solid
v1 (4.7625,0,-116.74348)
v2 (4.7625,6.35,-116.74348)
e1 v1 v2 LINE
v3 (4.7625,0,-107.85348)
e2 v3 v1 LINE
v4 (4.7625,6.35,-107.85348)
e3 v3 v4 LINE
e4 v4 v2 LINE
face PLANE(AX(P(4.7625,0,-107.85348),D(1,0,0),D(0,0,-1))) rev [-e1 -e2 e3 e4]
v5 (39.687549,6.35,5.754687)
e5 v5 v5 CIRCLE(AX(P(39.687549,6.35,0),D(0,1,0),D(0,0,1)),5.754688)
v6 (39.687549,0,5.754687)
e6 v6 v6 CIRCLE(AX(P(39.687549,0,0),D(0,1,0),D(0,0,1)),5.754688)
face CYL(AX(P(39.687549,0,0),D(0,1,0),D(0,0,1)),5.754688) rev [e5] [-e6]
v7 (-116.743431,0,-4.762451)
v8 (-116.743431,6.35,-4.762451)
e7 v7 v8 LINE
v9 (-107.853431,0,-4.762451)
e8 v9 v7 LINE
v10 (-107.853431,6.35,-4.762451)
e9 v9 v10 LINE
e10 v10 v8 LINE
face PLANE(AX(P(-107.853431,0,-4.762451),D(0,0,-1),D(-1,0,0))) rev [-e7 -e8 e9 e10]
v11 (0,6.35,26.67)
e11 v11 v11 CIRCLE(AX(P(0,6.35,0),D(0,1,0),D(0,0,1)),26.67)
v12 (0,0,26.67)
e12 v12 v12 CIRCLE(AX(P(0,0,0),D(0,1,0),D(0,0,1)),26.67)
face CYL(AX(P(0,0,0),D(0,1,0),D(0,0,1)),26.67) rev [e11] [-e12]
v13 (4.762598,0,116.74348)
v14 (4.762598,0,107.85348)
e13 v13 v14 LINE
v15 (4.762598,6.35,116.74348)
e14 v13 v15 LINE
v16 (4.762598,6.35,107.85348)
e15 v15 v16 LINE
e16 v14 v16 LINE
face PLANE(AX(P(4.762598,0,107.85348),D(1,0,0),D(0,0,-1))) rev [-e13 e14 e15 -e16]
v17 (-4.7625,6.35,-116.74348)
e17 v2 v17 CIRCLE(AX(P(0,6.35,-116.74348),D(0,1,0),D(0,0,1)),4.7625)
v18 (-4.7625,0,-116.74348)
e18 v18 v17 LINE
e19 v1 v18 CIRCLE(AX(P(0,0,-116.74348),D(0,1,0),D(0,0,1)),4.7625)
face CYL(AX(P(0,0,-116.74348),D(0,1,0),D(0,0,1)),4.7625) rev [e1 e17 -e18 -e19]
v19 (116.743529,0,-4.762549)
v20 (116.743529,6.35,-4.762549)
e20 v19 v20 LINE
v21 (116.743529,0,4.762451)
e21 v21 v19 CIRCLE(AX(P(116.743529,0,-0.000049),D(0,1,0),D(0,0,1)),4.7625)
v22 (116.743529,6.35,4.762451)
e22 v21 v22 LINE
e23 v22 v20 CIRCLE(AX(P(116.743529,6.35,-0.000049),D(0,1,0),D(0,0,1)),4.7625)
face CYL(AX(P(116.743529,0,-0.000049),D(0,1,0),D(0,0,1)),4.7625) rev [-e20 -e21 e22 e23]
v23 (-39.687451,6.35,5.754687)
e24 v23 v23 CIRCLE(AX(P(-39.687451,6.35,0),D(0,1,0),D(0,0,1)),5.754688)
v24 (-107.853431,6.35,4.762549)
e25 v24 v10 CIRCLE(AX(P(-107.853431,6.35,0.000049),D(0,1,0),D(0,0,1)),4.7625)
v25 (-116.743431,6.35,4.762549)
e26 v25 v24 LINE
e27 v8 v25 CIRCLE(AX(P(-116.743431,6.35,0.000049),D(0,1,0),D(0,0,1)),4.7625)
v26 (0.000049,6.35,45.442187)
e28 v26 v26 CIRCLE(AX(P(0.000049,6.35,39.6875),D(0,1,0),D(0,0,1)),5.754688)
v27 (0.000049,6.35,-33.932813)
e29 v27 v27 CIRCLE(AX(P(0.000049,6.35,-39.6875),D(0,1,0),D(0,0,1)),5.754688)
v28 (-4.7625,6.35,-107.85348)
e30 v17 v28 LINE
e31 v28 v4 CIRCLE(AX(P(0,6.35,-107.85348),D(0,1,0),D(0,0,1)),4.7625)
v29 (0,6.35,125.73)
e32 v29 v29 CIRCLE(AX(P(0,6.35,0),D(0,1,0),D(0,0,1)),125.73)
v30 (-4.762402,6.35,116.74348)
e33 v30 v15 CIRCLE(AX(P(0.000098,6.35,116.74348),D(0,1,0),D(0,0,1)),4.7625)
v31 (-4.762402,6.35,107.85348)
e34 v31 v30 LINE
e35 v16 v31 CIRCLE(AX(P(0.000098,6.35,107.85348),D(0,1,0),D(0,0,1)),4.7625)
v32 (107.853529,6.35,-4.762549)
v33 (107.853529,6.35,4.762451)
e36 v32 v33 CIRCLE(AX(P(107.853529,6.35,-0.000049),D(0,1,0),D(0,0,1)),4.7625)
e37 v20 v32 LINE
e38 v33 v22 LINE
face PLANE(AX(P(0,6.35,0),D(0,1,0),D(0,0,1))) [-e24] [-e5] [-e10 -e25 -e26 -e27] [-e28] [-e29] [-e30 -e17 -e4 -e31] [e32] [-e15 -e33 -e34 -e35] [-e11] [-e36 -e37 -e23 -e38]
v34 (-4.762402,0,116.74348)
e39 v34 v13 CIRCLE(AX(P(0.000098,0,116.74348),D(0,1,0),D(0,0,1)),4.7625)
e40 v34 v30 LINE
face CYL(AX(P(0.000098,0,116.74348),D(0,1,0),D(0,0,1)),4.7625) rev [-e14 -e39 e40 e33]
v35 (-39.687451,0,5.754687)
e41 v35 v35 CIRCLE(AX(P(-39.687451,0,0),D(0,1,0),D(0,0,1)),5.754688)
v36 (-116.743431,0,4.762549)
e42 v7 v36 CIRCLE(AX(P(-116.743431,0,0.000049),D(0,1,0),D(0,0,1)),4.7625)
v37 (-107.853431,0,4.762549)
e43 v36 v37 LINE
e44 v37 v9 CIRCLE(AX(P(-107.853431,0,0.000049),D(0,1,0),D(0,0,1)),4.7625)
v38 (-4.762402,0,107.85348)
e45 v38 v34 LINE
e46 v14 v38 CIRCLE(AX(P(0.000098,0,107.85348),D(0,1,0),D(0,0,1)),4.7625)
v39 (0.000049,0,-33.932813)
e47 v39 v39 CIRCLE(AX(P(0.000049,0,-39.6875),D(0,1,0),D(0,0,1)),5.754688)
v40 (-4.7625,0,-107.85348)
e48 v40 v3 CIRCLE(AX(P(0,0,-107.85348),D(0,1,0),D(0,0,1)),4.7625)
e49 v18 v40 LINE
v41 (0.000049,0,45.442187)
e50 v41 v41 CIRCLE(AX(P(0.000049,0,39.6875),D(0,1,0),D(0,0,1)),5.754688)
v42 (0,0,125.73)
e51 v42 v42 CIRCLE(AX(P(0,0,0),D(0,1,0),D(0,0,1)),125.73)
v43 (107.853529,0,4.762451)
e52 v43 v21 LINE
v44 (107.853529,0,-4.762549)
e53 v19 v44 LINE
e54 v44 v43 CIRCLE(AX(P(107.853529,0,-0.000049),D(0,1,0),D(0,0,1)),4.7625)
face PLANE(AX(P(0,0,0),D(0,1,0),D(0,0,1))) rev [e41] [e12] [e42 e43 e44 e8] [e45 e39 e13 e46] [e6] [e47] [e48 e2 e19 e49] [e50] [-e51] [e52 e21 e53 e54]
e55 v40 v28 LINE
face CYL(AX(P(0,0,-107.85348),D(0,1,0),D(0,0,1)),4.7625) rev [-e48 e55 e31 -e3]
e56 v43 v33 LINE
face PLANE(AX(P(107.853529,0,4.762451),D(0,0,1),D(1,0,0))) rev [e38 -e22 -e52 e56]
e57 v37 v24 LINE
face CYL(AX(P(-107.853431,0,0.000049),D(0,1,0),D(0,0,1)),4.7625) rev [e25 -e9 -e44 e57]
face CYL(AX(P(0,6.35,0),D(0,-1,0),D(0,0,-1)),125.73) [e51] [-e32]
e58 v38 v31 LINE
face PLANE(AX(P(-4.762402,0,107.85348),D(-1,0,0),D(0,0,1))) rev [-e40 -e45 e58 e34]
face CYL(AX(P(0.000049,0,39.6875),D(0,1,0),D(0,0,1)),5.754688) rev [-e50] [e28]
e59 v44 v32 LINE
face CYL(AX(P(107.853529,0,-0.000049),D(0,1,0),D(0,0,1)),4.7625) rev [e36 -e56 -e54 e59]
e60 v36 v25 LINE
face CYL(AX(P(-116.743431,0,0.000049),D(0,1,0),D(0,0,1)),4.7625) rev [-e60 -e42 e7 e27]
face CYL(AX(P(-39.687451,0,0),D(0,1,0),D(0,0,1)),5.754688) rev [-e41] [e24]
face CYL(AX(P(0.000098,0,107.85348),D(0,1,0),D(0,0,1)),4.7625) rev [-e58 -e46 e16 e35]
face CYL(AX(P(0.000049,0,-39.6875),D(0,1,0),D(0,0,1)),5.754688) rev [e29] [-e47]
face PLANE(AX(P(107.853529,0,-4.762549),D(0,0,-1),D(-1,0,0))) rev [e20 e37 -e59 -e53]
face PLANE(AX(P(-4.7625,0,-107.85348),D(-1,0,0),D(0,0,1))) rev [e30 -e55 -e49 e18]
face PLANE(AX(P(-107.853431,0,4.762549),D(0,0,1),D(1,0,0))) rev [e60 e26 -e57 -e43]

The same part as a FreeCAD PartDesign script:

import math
import FreeCAD as App
import Part
import Sketcher
from FreeCAD import Vector
Q = App.Units.Quantity

doc = App.newDocument("Part")
params = doc.addObject("Spreadsheet::Sheet", "Params")
for row, (alias, value) in enumerate([
    ("sketch1_diameter", "9.9 in"),
    ("pad1_length", "0.25 in"),
    ("sketch2_diameter", "2.1 in"),
    ("sketch2_diameter2", "0.453125 in"),
    ("sketch2_radius", "0.1875 in"),
    ("sketch2_width", "0.35 in"),
    ("pocket1_length", "0.25 in"),
], start=1):
    params.set(f"A{row}", alias)
    params.set(f"B{row}", "=" + value)
    params.setAlias(f"B{row}", alias)

body = doc.addObject("PartDesign::Body", "Body")

# Sketch on XZ plane
sketch1 = body.newObject("Sketcher::SketchObject", "Sketch")
sketch1.AttachmentSupport = (doc.getObject("XZ_Plane"), [""])
sketch1.MapMode = "FlatFace"
sketch1.addGeometry(Part.Circle(Vector(0, 0, 0), Vector(0, 0, 1), 126), False)
sketch1.addConstraint([
    Sketcher.Constraint("Coincident", 0, 3, -1, 1),
    Sketcher.Constraint("Diameter", 0, Q("9.9 in")),
])
sketch1.setExpression("Constraints[1]", "Params.sketch1_diameter")
pad1 = body.newObject("PartDesign::Pad", "Pad")
pad1.Profile = sketch1
pad1.setExpression("Length", "Params.pad1_length")
pad1.Reversed = True

# Sketch on XZ plane
sketch2 = body.newObject("Sketcher::SketchObject", "Sketch001")
sketch2.AttachmentSupport = (doc.getObject("XZ_Plane"), [""])
sketch2.MapMode = "FlatFace"
sketch2.AttachmentOffset = App.Placement(Vector(0, 0, -0.25 * 25.4), App.Rotation())
sketch2.addGeometry([
    Part.Circle(Vector(0, -39.7, 0), Vector(0, 0, 1), 5.8),  # 0
    Part.Circle(Vector(39.7, 0, 0), Vector(0, 0, 1), 5.8),  # 1
    Part.Circle(Vector(0, 39.7, 0), Vector(0, 0, 1), 5.8),  # 2
    Part.Circle(Vector(-39.7, 0, 0), Vector(0, 0, 1), 5.8),  # 3
    Part.Circle(Vector(0, 0, 0), Vector(0, 0, 1), 26.7),  # 4
    Part.LineSegment(Vector(-4.8, -116.7, 0), Vector(-4.8, -107.9, 0)),  # 5
    Part.ArcOfCircle(Part.Circle(Vector(0, -107.9, 0), Vector(0, 0, 1), 4.8), math.radians(0), math.radians(180)),  # 6
    Part.LineSegment(Vector(4.8, -107.9, 0), Vector(4.8, -116.7, 0)),  # 7
    Part.ArcOfCircle(Part.Circle(Vector(0, -116.7, 0), Vector(0, 0, 1), 4.8), math.radians(180), math.radians(360)),  # 8
    Part.LineSegment(Vector(116.7, -4.8, 0), Vector(107.9, -4.8, 0)),  # 9
    Part.ArcOfCircle(Part.Circle(Vector(107.9, 0, 0), Vector(0, 0, 1), 4.8), math.radians(90), math.radians(270)),  # 10
    Part.LineSegment(Vector(107.9, 4.8, 0), Vector(116.7, 4.8, 0)),  # 11
    Part.ArcOfCircle(Part.Circle(Vector(116.7, 0, 0), Vector(0, 0, 1), 4.8), math.radians(-90), math.radians(90)),  # 12
    Part.LineSegment(Vector(4.8, 116.7, 0), Vector(4.8, 107.9, 0)),  # 13
    Part.ArcOfCircle(Part.Circle(Vector(0, 107.9, 0), Vector(0, 0, 1), 4.8), math.radians(180), math.radians(360)),  # 14
    Part.LineSegment(Vector(-4.8, 107.9, 0), Vector(-4.8, 116.7, 0)),  # 15
    Part.ArcOfCircle(Part.Circle(Vector(0, 116.7, 0), Vector(0, 0, 1), 4.8), math.radians(0), math.radians(180)),  # 16
    Part.LineSegment(Vector(-116.7, 4.8, 0), Vector(-107.9, 4.8, 0)),  # 17
    Part.ArcOfCircle(Part.Circle(Vector(-107.9, 0, 0), Vector(0, 0, 1), 4.8), math.radians(-90), math.radians(90)),  # 18
    Part.LineSegment(Vector(-107.9, -4.8, 0), Vector(-116.7, -4.8, 0)),  # 19
    Part.ArcOfCircle(Part.Circle(Vector(-116.7, 0, 0), Vector(0, 0, 1), 4.8), math.radians(90), math.radians(270)),  # 20
], False)
sketch2.addConstraint([
    Sketcher.Constraint("Tangent", 5, 2, 6, 2),
    Sketcher.Constraint("Tangent", 6, 1, 7, 1),
    Sketcher.Constraint("Tangent", 7, 2, 8, 2),
    Sketcher.Constraint("Tangent", 8, 1, 5, 1),
    Sketcher.Constraint("Tangent", 9, 2, 10, 2),
    Sketcher.Constraint("Tangent", 10, 1, 11, 1),
    Sketcher.Constraint("Tangent", 11, 2, 12, 2),
    Sketcher.Constraint("Tangent", 12, 1, 9, 1),
    Sketcher.Constraint("Tangent", 13, 2, 14, 2),
    Sketcher.Constraint("Tangent", 14, 1, 15, 1),
    Sketcher.Constraint("Tangent", 15, 2, 16, 2),
    Sketcher.Constraint("Tangent", 16, 1, 13, 1),
    Sketcher.Constraint("Tangent", 17, 2, 18, 2),
    Sketcher.Constraint("Tangent", 18, 1, 19, 1),
    Sketcher.Constraint("Tangent", 19, 2, 20, 2),
    Sketcher.Constraint("Tangent", 20, 1, 17, 1),
    Sketcher.Constraint("Vertical", 5),
    Sketcher.Constraint("Vertical", 7),
    Sketcher.Constraint("Horizontal", 9),
    Sketcher.Constraint("Horizontal", 11),
    Sketcher.Constraint("Vertical", 13),
    Sketcher.Constraint("Vertical", 15),
    Sketcher.Constraint("Horizontal", 17),
    Sketcher.Constraint("Horizontal", 19),
    Sketcher.Constraint("Coincident", 4, 3, -1, 1),
    Sketcher.Constraint("Equal", 0, 1),
    Sketcher.Constraint("Equal", 1, 2),
    Sketcher.Constraint("Equal", 2, 3),
    Sketcher.Constraint("Equal", 8, 10),
    Sketcher.Constraint("Equal", 12, 14),
    Sketcher.Constraint("Equal", 16, 18),
    Sketcher.Constraint("Symmetric", 0, 3, 2, 3, -1),
    Sketcher.Constraint("PointOnObject", 1, 3, -1),
    Sketcher.Constraint("PointOnObject", 3, 3, -1),
    Sketcher.Constraint("PointOnObject", 6, 3, -2),
    Sketcher.Constraint("Equal", 11, 17),
    Sketcher.Constraint("Equal", 19, 5),
    Sketcher.Constraint("Equal", 7, 13),
    Sketcher.Constraint("Diameter", 4, Q("2.1 in")),
    Sketcher.Constraint("Diameter", 0, Q("0.453125 in")),
    Sketcher.Constraint("Radius", 6, Q("0.1875 in")),
    Sketcher.Constraint("DistanceX", 9, 2, 9, 1, Q("0.35 in")),
    Sketcher.Constraint("DistanceY", 0, 3, -1, 1, Q("1.5625 in")),
    Sketcher.Constraint("DistanceX", 0, 3, 1, 3, Q("1.5625 in")),
    Sketcher.Constraint("DistanceX", 3, 3, 0, 3, Q("1.5625 in")),
    Sketcher.Constraint("DistanceY", 6, 3, -1, 1, Q("4.2462 in")),
    Sketcher.Constraint("DistanceY", -1, 1, 14, 3, Q("4.2462 in")),
    Sketcher.Constraint("DistanceX", 1, 3, 10, 3, Q("2.6837 in")),
    Sketcher.Constraint("DistanceX", 18, 3, 3, 3, Q("2.6837 in")),
    Sketcher.Constraint("DistanceX", -1, 1, 13, 2, Q("4.762598 mm")),
    Sketcher.Constraint("DistanceX", -1, 1, 1, 3, Q("39.687549 mm")),
    Sketcher.Constraint("DistanceY", 9, 2, -1, 1, Q("4.762549 mm")),
    Sketcher.Constraint("DistanceY", -1, 1, 17, 2, Q("4.762549 mm")),
])
sketch2.setExpression("Constraints[38]", "Params.sketch2_diameter")
sketch2.setExpression("Constraints[39]", "Params.sketch2_diameter2")
sketch2.setExpression("Constraints[40]", "Params.sketch2_radius")
sketch2.setExpression("Constraints[41]", "Params.sketch2_width")
pocket1 = body.newObject("PartDesign::Pocket", "Pocket")
pocket1.Profile = sketch2
pocket1.setExpression("Length", "Params.pocket1_length")
pocket1.Reversed = True

doc.recompute()
